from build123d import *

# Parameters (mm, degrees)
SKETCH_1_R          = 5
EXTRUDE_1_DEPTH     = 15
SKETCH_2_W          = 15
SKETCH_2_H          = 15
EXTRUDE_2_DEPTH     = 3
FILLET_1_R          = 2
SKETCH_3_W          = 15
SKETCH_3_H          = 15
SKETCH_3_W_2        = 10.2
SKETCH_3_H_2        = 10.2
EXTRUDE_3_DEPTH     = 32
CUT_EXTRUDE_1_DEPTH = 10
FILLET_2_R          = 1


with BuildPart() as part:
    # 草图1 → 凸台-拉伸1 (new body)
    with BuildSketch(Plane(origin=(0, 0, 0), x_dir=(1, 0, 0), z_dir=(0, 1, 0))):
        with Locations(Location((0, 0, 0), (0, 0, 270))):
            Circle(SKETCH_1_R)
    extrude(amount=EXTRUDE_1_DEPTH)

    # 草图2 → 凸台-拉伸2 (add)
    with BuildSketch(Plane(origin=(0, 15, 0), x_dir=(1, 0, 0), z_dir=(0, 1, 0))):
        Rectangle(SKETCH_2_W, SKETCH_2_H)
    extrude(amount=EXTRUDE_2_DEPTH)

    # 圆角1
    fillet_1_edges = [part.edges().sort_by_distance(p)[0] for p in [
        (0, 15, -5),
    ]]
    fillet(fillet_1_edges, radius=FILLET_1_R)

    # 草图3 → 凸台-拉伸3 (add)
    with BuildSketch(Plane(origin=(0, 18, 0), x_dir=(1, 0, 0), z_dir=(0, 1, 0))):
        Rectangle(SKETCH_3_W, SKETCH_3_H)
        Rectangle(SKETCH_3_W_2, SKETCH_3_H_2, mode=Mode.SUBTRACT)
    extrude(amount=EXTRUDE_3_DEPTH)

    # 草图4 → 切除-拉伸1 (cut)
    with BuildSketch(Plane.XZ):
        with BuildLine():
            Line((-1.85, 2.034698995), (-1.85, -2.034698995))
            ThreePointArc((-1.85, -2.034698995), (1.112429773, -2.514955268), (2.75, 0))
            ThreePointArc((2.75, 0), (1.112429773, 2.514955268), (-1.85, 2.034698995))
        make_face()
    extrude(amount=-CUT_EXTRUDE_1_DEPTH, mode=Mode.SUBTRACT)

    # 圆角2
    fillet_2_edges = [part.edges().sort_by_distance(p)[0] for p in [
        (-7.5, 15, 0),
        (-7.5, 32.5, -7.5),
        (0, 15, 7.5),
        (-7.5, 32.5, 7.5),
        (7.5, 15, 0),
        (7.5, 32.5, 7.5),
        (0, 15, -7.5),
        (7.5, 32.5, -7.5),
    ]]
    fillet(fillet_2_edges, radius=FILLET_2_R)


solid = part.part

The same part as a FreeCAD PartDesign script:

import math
import FreeCAD as App
import Part
import Sketcher
from FreeCAD import Vector


def edges_at(feature, points):
    """Names of the edges that pass closest to the given points."""
    edges = feature.Shape.Edges
    near = lambda p: min(range(len(edges)), key=lambda i: edges[i].distToShape(Part.Vertex(*p))[0])
    return sorted({f"Edge{near(p) + 1}" for p in points})

doc = App.newDocument("Part")
params = doc.addObject("Spreadsheet::Sheet", "Params")
for row, (alias, value) in enumerate([
    ("sketch1_diameter", "10 mm"),
    ("pad1_length", "15 mm"),
    ("sketch2_width", "15 mm"),
    ("pad2_length", "3 mm"),
    ("fillet_radius", "2 mm"),
    ("sketch3_width", "15 mm"),
    ("sketch3_width2", "10.2 mm"),
    ("pad3_length", "32 mm"),
    ("sketch4_radius", "2.75 mm"),
    ("pocket1_length", "10 mm"),
    ("fillet2_radius", "1 mm"),
], start=1):
    params.set(f"A{row}", alias)
    params.set(f"B{row}", "=" + value)
    params.setAlias(f"B{row}", alias)

body = doc.addObject("PartDesign::Body", "Body")

# Sketch on XZ plane
sketch1 = doc.addObject("Sketcher::SketchObject", "Sketch")
body.addObject(sketch1)
sketch1.AttachmentSupport = (doc.XZ_Plane, [""])
sketch1.MapMode = "FlatFace"
sketch1.addGeometry(Part.Circle(Vector(0, 0, 0), Vector(0, 0, 1), 5), False)
sketch1.addConstraint([
    Sketcher.Constraint("Coincident", 0, 3, -1, 1),
    Sketcher.Constraint("Diameter", 0, 10.0),
])
sketch1.setExpression("Constraints[1]", "Params.sketch1_diameter")
pad1 = doc.addObject("PartDesign::Pad", "Pad")
body.addObject(pad1)
pad1.Profile = sketch1
pad1.setExpression("Length", "Params.pad1_length")
pad1.Reversed = True

# Sketch on XZ plane
sketch2 = doc.addObject("Sketcher::SketchObject", "Sketch001")
body.addObject(sketch2)
sketch2.AttachmentSupport = (doc.XZ_Plane, [""])
sketch2.MapMode = "FlatFace"
sketch2.AttachmentOffset = App.Placement(Vector(0, 0, -15), App.Rotation())
sketch2.addGeometry([
    Part.LineSegment(Vector(-8, -8, 0), Vector(-8, 8, 0)),
    Part.LineSegment(Vector(-8, 8, 0), Vector(8, 8, 0)),
    Part.LineSegment(Vector(8, 8, 0), Vector(8, -8, 0)),
    Part.LineSegment(Vector(8, -8, 0), Vector(-8, -8, 0)),
], False)
sketch2.addConstraint([
    Sketcher.Constraint("Coincident", 0, 2, 1, 1),
    Sketcher.Constraint("Coincident", 1, 2, 2, 1),
    Sketcher.Constraint("Coincident", 2, 2, 3, 1),
    Sketcher.Constraint("Coincident", 3, 2, 0, 1),
    Sketcher.Constraint("Vertical", 0),
    Sketcher.Constraint("Horizontal", 1),
    Sketcher.Constraint("Vertical", 2),
    Sketcher.Constraint("Horizontal", 3),
    Sketcher.Constraint("Symmetric", 0, 2, 2, 2, -1, 1),
    Sketcher.Constraint("Equal", 3, 0),
    Sketcher.Constraint("DistanceX", 1, 1, 1, 2, 15.0),
])
sketch2.setExpression("Constraints[10]", "Params.sketch2_width")
pad2 = doc.addObject("PartDesign::Pad", "Pad001")
body.addObject(pad2)
pad2.Profile = sketch2
pad2.setExpression("Length", "Params.pad2_length")
pad2.Reversed = True
doc.recompute()

fillet = doc.addObject("PartDesign::Fillet", "Fillet")
body.addObject(fillet)
fillet.Base = (pad2, edges_at(pad2, [(0, 15, -5)]))
fillet.setExpression("Radius", "Params.fillet_radius")

# Sketch on XZ plane
sketch3 = doc.addObject("Sketcher::SketchObject", "Sketch002")
body.addObject(sketch3)
sketch3.AttachmentSupport = (doc.XZ_Plane, [""])
sketch3.MapMode = "FlatFace"
sketch3.AttachmentOffset = App.Placement(Vector(0, 0, -18), App.Rotation())
sketch3.addGeometry([
    Part.LineSegment(Vector(-8, -8, 0), Vector(-8, 8, 0)),  # 0
    Part.LineSegment(Vector(-8, 8, 0), Vector(8, 8, 0)),  # 1
    Part.LineSegment(Vector(8, 8, 0), Vector(8, -8, 0)),  # 2
    Part.LineSegment(Vector(8, -8, 0), Vector(-8, -8, 0)),  # 3
    Part.LineSegment(Vector(5, 5, 0), Vector(-5, 5, 0)),  # 4
    Part.LineSegment(Vector(-5, 5, 0), Vector(-5, -5, 0)),  # 5
    Part.LineSegment(Vector(-5, -5, 0), Vector(5, -5, 0)),  # 6
    Part.LineSegment(Vector(5, -5, 0), Vector(5, 5, 0)),  # 7
], False)
sketch3.addConstraint([
    Sketcher.Constraint("Coincident", 0, 2, 1, 1),
    Sketcher.Constraint("Coincident", 1, 2, 2, 1),
    Sketcher.Constraint("Coincident", 2, 2, 3, 1),
    Sketcher.Constraint("Coincident", 3, 2, 0, 1),
    Sketcher.Constraint("Coincident", 4, 2, 5, 1),
    Sketcher.Constraint("Coincident", 5, 2, 6, 1),
    Sketcher.Constraint("Coincident", 6, 2, 7, 1),
    Sketcher.Constraint("Coincident", 7, 2, 4, 1),
    Sketcher.Constraint("Vertical", 0),
    Sketcher.Constraint("Horizontal", 1),
    Sketcher.Constraint("Vertical", 2),
    Sketcher.Constraint("Horizontal", 3),
    Sketcher.Constraint("Horizontal", 4),
    Sketcher.Constraint("Vertical", 5),
    Sketcher.Constraint("Horizontal", 6),
    Sketcher.Constraint("Vertical", 7),
    Sketcher.Constraint("Symmetric", 0, 2, 2, 2, -1, 1),
    Sketcher.Constraint("Symmetric", 4, 2, 6, 2, -1, 1),
    Sketcher.Constraint("Equal", 3, 0),
    Sketcher.Constraint("Equal", 6, 5),
    Sketcher.Constraint("DistanceX", 1, 1, 1, 2, 15.0),
    Sketcher.Constraint("DistanceX", 4, 2, 4, 1, 10.2),
])
sketch3.setExpression("Constraints[20]", "Params.sketch3_width")
sketch3.setExpression("Constraints[21]", "Params.sketch3_width2")
pad3 = doc.addObject("PartDesign::Pad", "Pad002")
body.addObject(pad3)
pad3.Profile = sketch3
pad3.setExpression("Length", "Params.pad3_length")
pad3.Reversed = True

# Sketch on XZ plane
sketch4 = doc.addObject("Sketcher::SketchObject", "Sketch003")
body.addObject(sketch4)
sketch4.AttachmentSupport = (doc.XZ_Plane, [""])
sketch4.MapMode = "FlatFace"
sketch4.addGeometry([
    Part.LineSegment(Vector(-1.9, 2, 0), Vector(-1.9, -2, 0)),
    Part.ArcOfCircle(Part.Circle(Vector(0, 0, 0), Vector(0, 0, 1), 2.8), math.radians(-132), math.radians(0)),
    Part.ArcOfCircle(Part.Circle(Vector(0, 0, 0), Vector(0, 0, 1), 2.8), math.radians(0), math.radians(132)),
], False)
sketch4.addConstraint([
    Sketcher.Constraint("Coincident", 0, 2, 1, 1),
    Sketcher.Constraint("Tangent", 1, 2, 2, 1),
    Sketcher.Constraint("Coincident", 2, 2, 0, 1),
    Sketcher.Constraint("Vertical", 0),
    Sketcher.Constraint("Coincident", 1, 3, -1, 1),
    Sketcher.Constraint("Equal", 1, 2),
    Sketcher.Constraint("PointOnObject", 1, 2, -1),
    Sketcher.Constraint("Radius", 1, 2.75),
    Sketcher.Constraint("DistanceX", 0, 2, 1, 2, 4.6),
])
sketch4.setExpression("Constraints[7]", "Params.sketch4_radius")
pocket1 = doc.addObject("PartDesign::Pocket", "Pocket")
body.addObject(pocket1)
pocket1.Profile = sketch4
pocket1.setExpression("Length", "Params.pocket1_length")
doc.recompute()

fillet2 = doc.addObject("PartDesign::Fillet", "Fillet001")
body.addObject(fillet2)
fillet2.Base = (pocket1, edges_at(pocket1, [
    (-7.5, 15, 0),
    (-7.5, 32.5, -7.5),
    (0, 15, 7.5),
    (-7.5, 32.5, 7.5),
    (7.5, 15, 0),
    (7.5, 32.5, 7.5),
    (0, 15, -7.5),
    (7.5, 32.5, -7.5),
]))
fillet2.setExpression("Radius", "Params.fillet2_radius")

doc.recompute()
